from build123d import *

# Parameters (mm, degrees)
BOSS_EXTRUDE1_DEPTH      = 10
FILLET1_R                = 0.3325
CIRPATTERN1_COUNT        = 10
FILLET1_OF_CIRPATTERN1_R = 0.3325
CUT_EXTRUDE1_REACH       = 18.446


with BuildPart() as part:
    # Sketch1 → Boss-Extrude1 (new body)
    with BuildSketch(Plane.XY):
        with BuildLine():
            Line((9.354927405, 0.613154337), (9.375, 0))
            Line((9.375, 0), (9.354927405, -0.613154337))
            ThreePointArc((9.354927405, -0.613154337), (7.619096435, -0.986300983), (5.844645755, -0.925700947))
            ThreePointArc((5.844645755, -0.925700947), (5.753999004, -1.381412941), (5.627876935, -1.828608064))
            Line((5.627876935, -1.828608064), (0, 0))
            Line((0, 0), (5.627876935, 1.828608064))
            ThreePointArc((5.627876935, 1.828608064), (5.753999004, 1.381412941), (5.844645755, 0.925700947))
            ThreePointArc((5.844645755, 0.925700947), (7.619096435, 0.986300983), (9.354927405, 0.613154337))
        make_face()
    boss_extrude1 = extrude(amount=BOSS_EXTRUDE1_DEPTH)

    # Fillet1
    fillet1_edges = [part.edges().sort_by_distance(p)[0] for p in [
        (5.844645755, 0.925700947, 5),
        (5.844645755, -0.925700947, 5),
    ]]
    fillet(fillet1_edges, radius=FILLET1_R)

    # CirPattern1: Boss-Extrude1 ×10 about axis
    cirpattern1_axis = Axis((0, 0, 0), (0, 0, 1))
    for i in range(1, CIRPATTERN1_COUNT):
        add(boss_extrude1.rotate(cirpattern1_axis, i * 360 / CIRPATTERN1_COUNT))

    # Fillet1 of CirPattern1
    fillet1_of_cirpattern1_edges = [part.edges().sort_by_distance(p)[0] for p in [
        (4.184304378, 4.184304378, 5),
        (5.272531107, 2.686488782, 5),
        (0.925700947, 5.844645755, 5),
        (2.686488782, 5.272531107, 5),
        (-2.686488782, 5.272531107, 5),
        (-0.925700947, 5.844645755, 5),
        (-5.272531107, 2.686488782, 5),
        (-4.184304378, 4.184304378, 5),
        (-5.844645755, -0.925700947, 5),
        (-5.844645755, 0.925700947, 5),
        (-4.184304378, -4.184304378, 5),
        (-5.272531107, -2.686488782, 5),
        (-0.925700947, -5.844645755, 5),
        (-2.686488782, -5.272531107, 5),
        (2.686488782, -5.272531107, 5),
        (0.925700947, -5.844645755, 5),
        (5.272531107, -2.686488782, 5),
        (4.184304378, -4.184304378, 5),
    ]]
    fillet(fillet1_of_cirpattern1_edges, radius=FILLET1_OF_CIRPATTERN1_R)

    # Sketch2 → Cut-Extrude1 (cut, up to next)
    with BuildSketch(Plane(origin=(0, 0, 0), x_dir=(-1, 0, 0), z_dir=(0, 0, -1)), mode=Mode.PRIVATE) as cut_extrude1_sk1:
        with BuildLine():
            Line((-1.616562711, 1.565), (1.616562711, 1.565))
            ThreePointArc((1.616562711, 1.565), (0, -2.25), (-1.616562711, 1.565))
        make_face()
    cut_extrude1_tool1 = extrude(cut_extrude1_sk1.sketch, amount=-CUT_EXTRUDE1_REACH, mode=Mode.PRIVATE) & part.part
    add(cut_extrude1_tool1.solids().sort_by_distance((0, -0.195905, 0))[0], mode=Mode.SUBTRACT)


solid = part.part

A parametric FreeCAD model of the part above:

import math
import FreeCAD as App
import Part
import Sketcher
from FreeCAD import Vector
Q = App.Units.Quantity


def edges_at(feature, points):
    """Names of the edges that pass closest to the given points."""
    edges = feature.Shape.Edges
    near = lambda p: min(range(len(edges)), key=lambda i: edges[i].distToShape(Part.Vertex(*p))[0])
    return sorted({f"Edge{near(p) + 1}" for p in points})

doc = App.newDocument("Part")
body = doc.addObject("PartDesign::Body", "Body")

sketch1 = body.newObject("Sketcher::SketchObject", "Sketch")
sketch1.AttachmentSupport = (doc.getObject("XY_Plane"), [""])
sketch1.MapMode = "FlatFace"
sketch1.addGeometry([
    Part.LineSegment(Vector(9.4, 0, 0), Vector(9.4, 0.6, 0)),
    Part.ArcOfCircle(Part.Circle(Vector(7, -6.2, 0), Vector(0, 0, 1), 7.2), math.radians(71), math.radians(99)),
    Part.ArcOfCircle(Part.Circle(Vector(0, 0, 0), Vector(0, 0, 1), 5.9), math.radians(9), math.radians(18)),
    Part.LineSegment(Vector(5.6, 1.8, 0), Vector(0, 0, 0)),
    Part.LineSegment(Vector(0, 0, 0), Vector(5.6, -1.8, 0)),
    Part.ArcOfCircle(Part.Circle(Vector(0, 0, 0), Vector(0, 0, 1), 5.9), math.radians(-18), math.radians(-9)),
    Part.ArcOfCircle(Part.Circle(Vector(7, 6.2, 0), Vector(0, 0, 1), 7.2), math.radians(-99), math.radians(-71)),
    Part.LineSegment(Vector(9.4, -0.6, 0), Vector(9.4, 0, 0)),
], False)
sketch1.addConstraint([
    Sketcher.Constraint("Coincident", 0, 2, 1, 1),
    Sketcher.Constraint("Coincident", 1, 2, 2, 1),
    Sketcher.Constraint("Coincident", 2, 2, 3, 1),
    Sketcher.Constraint("Coincident", 3, 2, 4, 1),
    Sketcher.Constraint("Coincident", 4, 2, 5, 1),
    Sketcher.Constraint("Coincident", 5, 2, 6, 1),
    Sketcher.Constraint("Coincident", 6, 2, 7, 1),
    Sketcher.Constraint("Coincident", 7, 2, 0, 1),
    Sketcher.Constraint("Coincident", 2, 3, -1, 1),
    Sketcher.Constraint("Coincident", 5, 3, -1, 1),
    Sketcher.Constraint("Coincident", 3, 2, -1, 1),
    Sketcher.Constraint("Equal", 2, 5),
    Sketcher.Constraint("Equal", 1, 6),
    Sketcher.Constraint("Symmetric", 1, 3, 6, 3, -1),
    Sketcher.Constraint("PointOnObject", 7, 2, -1),
    Sketcher.Constraint("Vertical", 2, 2, 4, 2),
    Sketcher.Constraint("Vertical", 0, 2, 6, 2),
    Sketcher.Constraint("Angle", 3, Q("-162 deg")),
    Sketcher.Constraint("Radius", 2, 5.9175),
    Sketcher.Constraint("DistanceX", -1, 1, 7, 2, 9.375),
    Sketcher.Constraint("Radius", 1, 7.239078),
    Sketcher.Constraint("DistanceY", -1, 1, 1, 2, 0.925701),
    Sketcher.Constraint("DistanceY", 1, 3, -1, 1, 6.224252),
    Sketcher.Constraint("DistanceX", 6, 3, 0, 2, 2.37784),
])
pad1 = body.newObject("PartDesign::Pad", "Pad")
pad1.Profile = sketch1
pad1.Length = 10
doc.recompute()

fillet = body.newObject("PartDesign::Fillet", "Fillet")
fillet.Base = (pad1, edges_at(pad1, [(5.845, 0.926, 5), (5.845, -0.926, 5)]))
fillet.Radius = 0.3325
doc.recompute()

polarpattern = body.newObject("PartDesign::PolarPattern", "PolarPattern")
polarpattern.Originals = [pad1]
polarpattern.Axis = (doc.getObject("Z_Axis"), [""])
polarpattern.Angle = 360
polarpattern.Occurrences = 10
body.Tip = polarpattern
doc.recompute()

fillet2 = body.newObject("PartDesign::Fillet", "Fillet001")
fillet2.Base = (polarpattern, edges_at(polarpattern, [
    (4.184, 4.184, 5),
    (5.273, 2.686, 5),
    (0.926, 5.845, 5),
    (2.686, 5.273, 5),
    (-2.686, 5.273, 5),
    (-0.926, 5.845, 5),
    (-5.273, 2.686, 5),
    (-4.184, 4.184, 5),
    (-5.845, -0.926, 5),
    (-5.845, 0.926, 5),
    (-4.184, -4.184, 5),
    (-5.273, -2.686, 5),
    (-0.926, -5.845, 5),
    (-2.686, -5.273, 5),
    (2.686, -5.273, 5),
    (0.926, -5.845, 5),
    (5.273, -2.686, 5),
    (4.184, -4.184, 5),
]))
fillet2.Radius = 0.3325

sketch2 = body.newObject("Sketcher::SketchObject", "Sketch001")
sketch2.AttachmentSupport = (doc.getObject("XY_Plane"), [""])
sketch2.MapMode = "FlatFace"
sketch2.addGeometry([
    Part.LineSegment(Vector(-1.6, 1.6, 0), Vector(1.6, 1.6, 0)),
    Part.ArcOfCircle(Part.Circle(Vector(0, 0, 0), Vector(0, 0, 1), 2.2), math.radians(136), math.radians(404)),
], False)
sketch2.addConstraint([
    Sketcher.Constraint("Coincident", 0, 1, 1, 1),
    Sketcher.Constraint("Coincident", 1, 2, 0, 2),
    Sketcher.Constraint("Horizontal", 0),
    Sketcher.Constraint("Coincident", 1, 3, -1, 1),
    Sketcher.Constraint("Radius", 1, 2.25),
    Sketcher.Constraint("DistanceY", -1, 1, 0, 1, 1.565),
])
pocket1 = body.newObject("PartDesign::Pocket", "Pocket")
pocket1.Profile = sketch2
pocket1.Type = "UpToFirst"
pocket1.Reversed = True

doc.recompute()
